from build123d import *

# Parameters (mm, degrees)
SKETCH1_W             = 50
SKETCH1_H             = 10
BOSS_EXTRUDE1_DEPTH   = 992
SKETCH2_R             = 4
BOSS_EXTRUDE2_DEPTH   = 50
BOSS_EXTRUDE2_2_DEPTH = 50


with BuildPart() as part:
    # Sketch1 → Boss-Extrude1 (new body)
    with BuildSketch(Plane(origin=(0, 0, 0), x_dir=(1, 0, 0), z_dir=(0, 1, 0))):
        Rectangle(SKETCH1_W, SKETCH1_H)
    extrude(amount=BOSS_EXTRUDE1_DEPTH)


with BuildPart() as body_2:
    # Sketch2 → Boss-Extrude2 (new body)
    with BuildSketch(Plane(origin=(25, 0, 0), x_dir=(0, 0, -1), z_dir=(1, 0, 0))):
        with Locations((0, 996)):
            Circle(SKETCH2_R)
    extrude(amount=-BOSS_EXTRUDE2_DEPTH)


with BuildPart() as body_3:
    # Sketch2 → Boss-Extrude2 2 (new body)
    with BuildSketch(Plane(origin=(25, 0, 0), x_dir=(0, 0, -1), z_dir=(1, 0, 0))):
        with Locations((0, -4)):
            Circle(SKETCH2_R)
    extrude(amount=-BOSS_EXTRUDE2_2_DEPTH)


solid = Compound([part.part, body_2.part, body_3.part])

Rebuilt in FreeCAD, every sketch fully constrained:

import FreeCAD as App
import Part
import Sketcher

V = App.Vector


def add_polygon(sketch, points):
    """Adds a closed chain of lines whose ends are joined by coincident constraints."""
    first, n = sketch.GeometryCount, len(points)
    for a, b in zip(points, points[1:] + points[:1]):
        sketch.addGeometry(Part.LineSegment(App.Vector(*a, 0), App.Vector(*b, 0)), False)
    for i in range(n):
        sketch.addConstraint(Sketcher.Constraint("Coincident", first + i, 2, first + (i + 1) % n, 1))

doc = App.newDocument("Part")
params = doc.addObject("Spreadsheet::Sheet", "Params")
for row, (alias, value) in enumerate([
    ("sketch1_width", "50 mm"),
    ("sketch1_height", "10 mm"),
    ("pad1_length", "992 mm"),
    ("sketch2_diameter", "8 mm"),
    ("pad2_length", "50 mm"),
    ("sketch3_diameter", "8 mm"),
    ("pad3_length", "50 mm"),
], start=1):
    params.set(f"A{row}", alias)
    params.set(f"B{row}", "=" + value)
    params.setAlias(f"B{row}", alias)

body = doc.addObject("PartDesign::Body", "Body")

sketch1 = body.newObject("Sketcher::SketchObject", "Sketch")
sketch1.AttachmentSupport = (doc.getObject("XZ_Plane"), [""])
sketch1.MapMode = "FlatFace"
add_polygon(sketch1, [(-25, -5), (-25, 5), (25, 5), (25, -5)])
sketch1.addConstraint([
    Sketcher.Constraint("Vertical", 0),
    Sketcher.Constraint("Horizontal", 1),
    Sketcher.Constraint("Vertical", 2),
    Sketcher.Constraint("Horizontal", 3),
    Sketcher.Constraint("Symmetric", 0, 2, 2, 2, -1, 1),
    Sketcher.Constraint("DistanceX", 1, 1, 1, 2, 50.0),
    Sketcher.Constraint("DistanceY", 0, 1, 0, 2, 10.0),
])
sketch1.setExpression("Constraints[9]", "Params.sketch1_width")
sketch1.setExpression("Constraints[10]", "Params.sketch1_height")
pad1 = body.newObject("PartDesign::Pad", "Pad")
pad1.Profile = sketch1
pad1.setExpression("Length", "Params.pad1_length")
pad1.Reversed = True
body2 = doc.addObject("PartDesign::Body", "Body001")

sketch2 = body2.newObject("Sketcher::SketchObject", "Sketch001")
sketch2.AttachmentSupport = (doc.getObject("YZ_Plane001"), [""])
sketch2.MapMode = "FlatFace"
sketch2.AttachmentOffset = App.Placement(V(0, 0, 25), App.Rotation())
sketch2.addGeometry(Part.Circle(V(996, 0, 0), V(0, 0, 1), 4), False)
sketch2.addConstraint([
    Sketcher.Constraint("PointOnObject", 0, 3, -1),
    Sketcher.Constraint("Diameter", 0, 8.0),
    Sketcher.Constraint("DistanceX", -1, 1, 0, 3, 996.0),
])
sketch2.setExpression("Constraints[1]", "Params.sketch2_diameter")
pad2 = body2.newObject("PartDesign::Pad", "Pad001")
pad2.Profile = sketch2
pad2.setExpression("Length", "Params.pad2_length")
pad2.Reversed = True
body3 = doc.addObject("PartDesign::Body", "Body002")

sketch3 = body3.newObject("Sketcher::SketchObject", "Sketch002")
sketch3.AttachmentSupport = (doc.getObject("YZ_Plane002"), [""])
sketch3.MapMode = "FlatFace"
sketch3.AttachmentOffset = App.Placement(V(0, 0, 25), App.Rotation())
sketch3.addGeometry(Part.Circle(V(-4, 0, 0), V(0, 0, 1), 4), False)
sketch3.addConstraint([
    Sketcher.Constraint("PointOnObject", 0, 3, -1),
    Sketcher.Constraint("Diameter", 0, 8.0),
    Sketcher.Constraint("DistanceX", 0, 3, -1, 1, 4.0),
])
sketch3.setExpression("Constraints[1]", "Params.sketch3_diameter")
pad3 = body3.newObject("PartDesign::Pad", "Pad002")
pad3.Profile = sketch3
pad3.setExpression("Length", "Params.pad3_length")
pad3.Reversed = True

doc.recompute()
